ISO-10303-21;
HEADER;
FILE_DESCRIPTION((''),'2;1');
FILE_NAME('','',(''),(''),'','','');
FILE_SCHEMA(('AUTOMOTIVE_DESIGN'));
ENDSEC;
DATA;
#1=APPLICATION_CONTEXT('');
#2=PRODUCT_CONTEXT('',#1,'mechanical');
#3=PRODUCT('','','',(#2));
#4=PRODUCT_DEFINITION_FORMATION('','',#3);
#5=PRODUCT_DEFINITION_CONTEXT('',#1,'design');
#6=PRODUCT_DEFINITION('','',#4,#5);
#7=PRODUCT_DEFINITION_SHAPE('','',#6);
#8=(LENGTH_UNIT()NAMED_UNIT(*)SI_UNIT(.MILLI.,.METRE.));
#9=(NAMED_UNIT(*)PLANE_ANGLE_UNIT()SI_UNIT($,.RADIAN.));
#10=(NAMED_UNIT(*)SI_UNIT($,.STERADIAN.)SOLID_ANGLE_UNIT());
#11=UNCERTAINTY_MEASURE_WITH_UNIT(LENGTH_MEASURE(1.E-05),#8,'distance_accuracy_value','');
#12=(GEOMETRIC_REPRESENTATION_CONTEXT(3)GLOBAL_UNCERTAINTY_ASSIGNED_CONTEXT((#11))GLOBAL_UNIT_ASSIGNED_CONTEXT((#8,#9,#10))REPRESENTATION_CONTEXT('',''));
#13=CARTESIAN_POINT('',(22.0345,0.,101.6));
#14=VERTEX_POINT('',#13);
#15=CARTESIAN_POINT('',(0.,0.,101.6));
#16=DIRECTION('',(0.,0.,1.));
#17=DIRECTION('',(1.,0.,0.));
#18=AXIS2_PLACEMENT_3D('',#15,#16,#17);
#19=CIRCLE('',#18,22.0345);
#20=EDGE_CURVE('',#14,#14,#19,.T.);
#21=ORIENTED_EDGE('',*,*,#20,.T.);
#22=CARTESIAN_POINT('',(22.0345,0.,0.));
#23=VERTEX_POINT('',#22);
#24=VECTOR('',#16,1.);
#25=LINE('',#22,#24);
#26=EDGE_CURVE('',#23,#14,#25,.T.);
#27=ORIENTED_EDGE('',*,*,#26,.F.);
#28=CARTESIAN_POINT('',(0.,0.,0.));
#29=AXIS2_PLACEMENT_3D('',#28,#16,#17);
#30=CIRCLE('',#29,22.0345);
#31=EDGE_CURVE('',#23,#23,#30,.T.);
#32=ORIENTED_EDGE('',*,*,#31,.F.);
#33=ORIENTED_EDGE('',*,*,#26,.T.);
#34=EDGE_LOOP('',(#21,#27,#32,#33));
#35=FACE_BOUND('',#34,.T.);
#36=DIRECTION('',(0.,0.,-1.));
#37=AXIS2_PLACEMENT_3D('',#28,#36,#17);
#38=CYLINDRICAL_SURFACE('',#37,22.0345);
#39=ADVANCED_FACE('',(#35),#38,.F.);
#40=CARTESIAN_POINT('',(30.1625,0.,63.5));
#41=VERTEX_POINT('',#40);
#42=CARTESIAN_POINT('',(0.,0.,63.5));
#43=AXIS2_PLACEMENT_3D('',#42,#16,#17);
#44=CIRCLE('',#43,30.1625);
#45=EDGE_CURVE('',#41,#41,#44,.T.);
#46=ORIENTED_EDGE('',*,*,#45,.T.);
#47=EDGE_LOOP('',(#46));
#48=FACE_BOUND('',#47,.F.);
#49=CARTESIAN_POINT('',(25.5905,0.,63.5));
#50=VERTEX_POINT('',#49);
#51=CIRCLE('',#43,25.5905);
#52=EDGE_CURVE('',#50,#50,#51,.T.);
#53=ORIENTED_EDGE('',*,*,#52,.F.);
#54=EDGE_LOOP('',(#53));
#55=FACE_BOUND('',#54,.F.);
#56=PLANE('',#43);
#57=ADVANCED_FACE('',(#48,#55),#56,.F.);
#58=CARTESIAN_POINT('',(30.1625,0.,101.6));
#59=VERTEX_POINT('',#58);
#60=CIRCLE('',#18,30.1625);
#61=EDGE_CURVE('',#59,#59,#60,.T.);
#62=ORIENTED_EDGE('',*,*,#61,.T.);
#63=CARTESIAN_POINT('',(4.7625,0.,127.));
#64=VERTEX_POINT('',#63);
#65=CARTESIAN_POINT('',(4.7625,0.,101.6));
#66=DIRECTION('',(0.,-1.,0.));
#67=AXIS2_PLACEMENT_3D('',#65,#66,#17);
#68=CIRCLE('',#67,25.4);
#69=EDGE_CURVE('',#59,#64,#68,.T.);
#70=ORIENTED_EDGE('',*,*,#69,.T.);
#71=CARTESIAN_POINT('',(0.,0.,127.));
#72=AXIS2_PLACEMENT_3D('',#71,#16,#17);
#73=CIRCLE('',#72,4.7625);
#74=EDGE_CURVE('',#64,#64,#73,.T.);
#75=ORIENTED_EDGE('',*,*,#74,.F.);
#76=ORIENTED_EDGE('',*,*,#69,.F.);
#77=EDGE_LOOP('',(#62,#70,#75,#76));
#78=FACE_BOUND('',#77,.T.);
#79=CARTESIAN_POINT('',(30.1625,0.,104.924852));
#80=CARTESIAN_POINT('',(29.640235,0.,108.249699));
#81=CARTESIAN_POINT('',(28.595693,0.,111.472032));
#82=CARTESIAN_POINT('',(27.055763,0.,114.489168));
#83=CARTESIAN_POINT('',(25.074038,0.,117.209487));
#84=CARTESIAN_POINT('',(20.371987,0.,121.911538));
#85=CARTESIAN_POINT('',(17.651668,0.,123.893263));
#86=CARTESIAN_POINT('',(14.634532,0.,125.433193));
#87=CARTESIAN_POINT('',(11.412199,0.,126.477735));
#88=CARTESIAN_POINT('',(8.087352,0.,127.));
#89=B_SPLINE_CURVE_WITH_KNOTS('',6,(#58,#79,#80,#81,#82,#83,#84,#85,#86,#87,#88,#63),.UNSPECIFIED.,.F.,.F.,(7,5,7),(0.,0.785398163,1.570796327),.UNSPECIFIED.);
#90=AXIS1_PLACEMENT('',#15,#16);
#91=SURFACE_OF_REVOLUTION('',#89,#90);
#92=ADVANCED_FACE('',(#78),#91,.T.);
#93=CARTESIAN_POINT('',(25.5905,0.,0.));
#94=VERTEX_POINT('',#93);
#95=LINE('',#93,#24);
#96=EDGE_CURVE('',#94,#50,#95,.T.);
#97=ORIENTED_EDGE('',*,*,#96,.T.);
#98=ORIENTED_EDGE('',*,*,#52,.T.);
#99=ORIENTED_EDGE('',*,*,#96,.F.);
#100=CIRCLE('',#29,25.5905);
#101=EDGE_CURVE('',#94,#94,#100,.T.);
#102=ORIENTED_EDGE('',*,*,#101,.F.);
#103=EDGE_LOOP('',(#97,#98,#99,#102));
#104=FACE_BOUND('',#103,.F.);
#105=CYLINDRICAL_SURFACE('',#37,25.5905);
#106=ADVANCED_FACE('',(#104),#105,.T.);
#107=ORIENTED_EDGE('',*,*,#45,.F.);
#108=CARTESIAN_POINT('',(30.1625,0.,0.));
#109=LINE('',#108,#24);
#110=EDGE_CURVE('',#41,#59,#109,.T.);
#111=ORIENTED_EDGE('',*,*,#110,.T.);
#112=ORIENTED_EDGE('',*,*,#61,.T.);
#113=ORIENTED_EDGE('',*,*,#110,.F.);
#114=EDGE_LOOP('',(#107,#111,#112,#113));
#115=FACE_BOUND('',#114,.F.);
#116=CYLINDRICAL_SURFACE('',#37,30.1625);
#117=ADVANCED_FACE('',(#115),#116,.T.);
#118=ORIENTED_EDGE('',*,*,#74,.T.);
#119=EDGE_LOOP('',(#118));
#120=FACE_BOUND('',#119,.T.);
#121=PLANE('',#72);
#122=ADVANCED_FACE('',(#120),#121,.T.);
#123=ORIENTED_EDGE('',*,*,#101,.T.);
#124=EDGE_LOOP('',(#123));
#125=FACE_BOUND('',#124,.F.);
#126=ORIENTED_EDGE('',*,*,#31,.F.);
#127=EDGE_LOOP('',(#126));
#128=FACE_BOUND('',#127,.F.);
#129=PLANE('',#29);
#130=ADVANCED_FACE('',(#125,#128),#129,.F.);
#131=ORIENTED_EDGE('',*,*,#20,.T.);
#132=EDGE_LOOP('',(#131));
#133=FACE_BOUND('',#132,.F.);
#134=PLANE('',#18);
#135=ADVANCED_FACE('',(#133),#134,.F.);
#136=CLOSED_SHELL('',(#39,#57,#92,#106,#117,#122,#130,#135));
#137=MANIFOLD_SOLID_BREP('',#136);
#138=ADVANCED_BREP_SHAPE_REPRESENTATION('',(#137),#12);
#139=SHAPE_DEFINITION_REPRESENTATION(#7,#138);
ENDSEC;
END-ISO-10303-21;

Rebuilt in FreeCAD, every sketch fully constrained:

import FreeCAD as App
import Part
import Sketcher

V = App.Vector
Q = App.Units.Quantity


def edges_at(feature, points):
    """Names of the edges that pass closest to the given points."""
    edges = feature.Shape.Edges
    near = lambda p: min(range(len(edges)), key=lambda i: edges[i].distToShape(Part.Vertex(*p))[0])
    return sorted({f"Edge{near(p) + 1}" for p in points})

doc = App.newDocument("Part")
params = doc.addObject("Spreadsheet::Sheet", "Params")
for row, (alias, value) in enumerate([
    ("sketch1_diameter", "2.375 in"),
    ("pad1_length", "5 in"),
    ("fillet_radius", "1 in"),
    ("sketch2_diameter", "1.735 in"),
    ("pocket1_length", "4 in"),
    ("sketch3_diameter", "2.375 in"),
    ("sketch3_diameter2", "2.015 in"),
    ("pocket2_length", "2.5 in"),
], start=1):
    params.set(f"A{row}", alias)
    params.set(f"B{row}", "=" + value)
    params.setAlias(f"B{row}", alias)

body = doc.addObject("PartDesign::Body", "Body")

sketch1 = body.newObject("Sketcher::SketchObject", "Sketch")
sketch1.AttachmentSupport = (doc.getObject("XY_Plane"), [""])
sketch1.MapMode = "FlatFace"
sketch1.addGeometry(Part.Circle(V(0, 0, 0), V(0, 0, 1), 30), False)
sketch1.addConstraint(Sketcher.Constraint("Coincident", 0, 3, -1, 1))
sketch1.addConstraint(Sketcher.Constraint("Diameter", 0, Q("2.375 in")))
sketch1.setExpression("Constraints[1]", "Params.sketch1_diameter")
pad1 = body.newObject("PartDesign::Pad", "Pad")
pad1.Profile = sketch1
pad1.setExpression("Length", "Params.pad1_length")
doc.recompute()

fillet = body.newObject("PartDesign::Fillet", "Fillet")
fillet.Base = (pad1, edges_at(pad1, [(-30.163, 0, 127)]))
fillet.setExpression("Radius", "Params.fillet_radius")

sketch2 = body.newObject("Sketcher::SketchObject", "Sketch001")
sketch2.AttachmentSupport = (doc.getObject("XY_Plane"), [""])
sketch2.MapMode = "FlatFace"
sketch2.addGeometry(Part.Circle(V(0, 0, 0), V(0, 0, 1), 22), False)
sketch2.addConstraint(Sketcher.Constraint("Coincident", 0, 3, -1, 1))
sketch2.addConstraint(Sketcher.Constraint("Diameter", 0, Q("1.735 in")))
sketch2.setExpression("Constraints[1]", "Params.sketch2_diameter")
pocket1 = body.newObject("PartDesign::Pocket", "Pocket")
pocket1.Profile = sketch2
pocket1.setExpression("Length", "Params.pocket1_length")
pocket1.Reversed = True

sketch3 = body.newObject("Sketcher::SketchObject", "Sketch002")
sketch3.AttachmentSupport = (doc.getObject("XY_Plane"), [""])
sketch3.MapMode = "FlatFace"
sketch3.addGeometry(Part.Circle(V(0, 0, 0), V(0, 0, 1), 30), False)
sketch3.addGeometry(Part.Circle(V(0, 0, 0), V(0, 0, 1), 26), False)
sketch3.addConstraint(Sketcher.Constraint("Coincident", 0, 3, -1, 1))
sketch3.addConstraint(Sketcher.Constraint("Coincident", 1, 3, -1, 1))
sketch3.addConstraint(Sketcher.Constraint("Diameter", 0, Q("2.375 in")))
sketch3.addConstraint(Sketcher.Constraint("Diameter", 1, Q("2.015 in")))
sketch3.setExpression("Constraints[2]", "Params.sketch3_diameter")
sketch3.setExpression("Constraints[3]", "Params.sketch3_diameter2")
pocket2 = body.newObject("PartDesign::Pocket", "Pocket001")
pocket2.Profile = sketch3
pocket2.setExpression("Length", "Params.pocket2_length")
pocket2.Reversed = True

doc.recompute()
